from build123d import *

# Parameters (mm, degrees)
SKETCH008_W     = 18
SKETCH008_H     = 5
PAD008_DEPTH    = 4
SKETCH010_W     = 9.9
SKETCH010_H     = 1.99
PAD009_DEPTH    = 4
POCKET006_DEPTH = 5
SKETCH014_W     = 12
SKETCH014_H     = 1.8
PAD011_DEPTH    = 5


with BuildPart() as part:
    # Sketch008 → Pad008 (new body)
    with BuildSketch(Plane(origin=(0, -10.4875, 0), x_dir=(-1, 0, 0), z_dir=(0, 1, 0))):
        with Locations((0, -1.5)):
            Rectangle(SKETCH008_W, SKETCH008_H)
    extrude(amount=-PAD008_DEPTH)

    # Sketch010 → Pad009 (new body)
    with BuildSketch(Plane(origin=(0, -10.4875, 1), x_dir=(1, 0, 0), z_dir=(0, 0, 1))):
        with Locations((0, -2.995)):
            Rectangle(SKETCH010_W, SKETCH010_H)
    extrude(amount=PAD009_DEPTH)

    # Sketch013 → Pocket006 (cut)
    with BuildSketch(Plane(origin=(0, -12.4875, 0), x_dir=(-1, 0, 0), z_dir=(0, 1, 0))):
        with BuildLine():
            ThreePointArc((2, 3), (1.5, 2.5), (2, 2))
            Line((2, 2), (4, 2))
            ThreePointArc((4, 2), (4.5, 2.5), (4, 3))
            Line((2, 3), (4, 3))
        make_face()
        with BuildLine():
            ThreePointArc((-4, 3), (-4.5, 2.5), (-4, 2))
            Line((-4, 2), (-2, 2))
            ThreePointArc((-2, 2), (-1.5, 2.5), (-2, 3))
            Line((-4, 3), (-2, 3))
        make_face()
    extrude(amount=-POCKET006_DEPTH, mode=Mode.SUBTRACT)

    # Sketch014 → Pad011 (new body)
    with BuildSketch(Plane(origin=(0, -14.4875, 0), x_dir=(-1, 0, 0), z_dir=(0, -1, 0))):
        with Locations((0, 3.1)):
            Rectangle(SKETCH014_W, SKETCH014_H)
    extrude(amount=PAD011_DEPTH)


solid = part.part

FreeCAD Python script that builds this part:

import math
import FreeCAD as App
import Part
import Sketcher
from FreeCAD import Vector


def add_polygon(sketch, points):
    """Adds a closed chain of lines whose ends are joined by coincident constraints."""
    first, n = sketch.GeometryCount, len(points)
    for a, b in zip(points, points[1:] + points[:1]):
        sketch.addGeometry(Part.LineSegment(App.Vector(*a, 0), App.Vector(*b, 0)), False)
    for i in range(n):
        sketch.addConstraint(Sketcher.Constraint("Coincident", first + i, 2, first + (i + 1) % n, 1))

doc = App.newDocument("Part")
params = doc.addObject("Spreadsheet::Sheet", "Params")
for row, (alias, value) in enumerate([
    ("sketch1_width", "18 mm"),
    ("sketch1_height", "5 mm"),
    ("pad1_length", "4 mm"),
    ("sketch2_width", "9.9 mm"),
    ("sketch2_height", "1.99 mm"),
    ("pad2_length", "4 mm"),
    ("sketch3_radius", "0.5 mm"),
    ("sketch3_width", "2 mm"),
    ("pocket1_length", "5 mm"),
    ("sketch4_width", "12 mm"),
    ("sketch4_height", "1.8 mm"),
    ("pad3_length", "5 mm"),
], start=1):
    params.set(f"A{row}", alias)
    params.set(f"B{row}", "=" + value)
    params.setAlias(f"B{row}", alias)

body = doc.addObject("PartDesign::Body", "Body")

# Sketch on XZ plane
sketch1 = body.newObject("Sketcher::SketchObject", "Sketch")
sketch1.AttachmentSupport = (doc.getObject("XZ_Plane"), [""])
sketch1.MapMode = "FlatFace"
sketch1.AttachmentOffset = App.Placement(Vector(0, 0, 10.4875), App.Rotation())
add_polygon(sketch1, [(9, 1), (9, -4), (-9, -4), (-9, 1)])  # lines 0-3
sketch1.addConstraint([
    Sketcher.Constraint("Vertical", 0),
    Sketcher.Constraint("Horizontal", 1),
    Sketcher.Constraint("Vertical", 2),
    Sketcher.Constraint("Horizontal", 3),
    Sketcher.Constraint("DistanceX", 1, 2, 1, 1, 18.0),
    Sketcher.Constraint("DistanceY", 0, 2, 0, 1, 5.0),
    Sketcher.Constraint("DistanceX", -1, 1, 0, 2, 9.0),
    Sketcher.Constraint("DistanceY", 0, 2, -1, 1, 4.0),
])
sketch1.setExpression("Constraints[8]", "Params.sketch1_width")
sketch1.setExpression("Constraints[9]", "Params.sketch1_height")
pad1 = body.newObject("PartDesign::Pad", "Pad")
pad1.Profile = sketch1
pad1.setExpression("Length", "Params.pad1_length")

# Sketch on XY plane
sketch2 = body.newObject("Sketcher::SketchObject", "Sketch001")
sketch2.AttachmentSupport = (doc.getObject("XY_Plane"), [""])
sketch2.MapMode = "FlatFace"
sketch2.AttachmentOffset = App.Placement(Vector(0, 0, 1), App.Rotation())
add_polygon(sketch2, [(-5, -12.5), (-5, -14.5), (5, -14.5), (5, -12.5)])  # lines 0-3
sketch2.addConstraint([
    Sketcher.Constraint("Vertical", 0),
    Sketcher.Constraint("Horizontal", 1),
    Sketcher.Constraint("Vertical", 2),
    Sketcher.Constraint("Horizontal", 3),
    Sketcher.Constraint("DistanceX", 1, 1, 1, 2, 9.9),
    Sketcher.Constraint("DistanceY", 0, 2, 0, 1, 1.99),
    Sketcher.Constraint("DistanceX", 0, 2, -1, 1, 4.95),
    Sketcher.Constraint("DistanceY", 0, 2, -1, 1, 14.4775),
])
sketch2.setExpression("Constraints[8]", "Params.sketch2_width")
sketch2.setExpression("Constraints[9]", "Params.sketch2_height")
pad2 = body.newObject("PartDesign::Pad", "Pad001")
pad2.Profile = sketch2
pad2.setExpression("Length", "Params.pad2_length")

# Sketch on XZ plane
sketch3 = body.newObject("Sketcher::SketchObject", "Sketch002")
sketch3.AttachmentSupport = (doc.getObject("XZ_Plane"), [""])
sketch3.MapMode = "FlatFace"
sketch3.AttachmentOffset = App.Placement(Vector(0, 0, 12.4875), App.Rotation())
sketch3.addGeometry([
    Part.ArcOfCircle(Part.Circle(Vector(-2, 2.5, 0), Vector(0, 0, 1), 0.5), math.radians(-90), math.radians(90)),  # 0
    Part.LineSegment(Vector(-2, 2, 0), Vector(-4, 2, 0)),  # 1
    Part.ArcOfCircle(Part.Circle(Vector(-4, 2.5, 0), Vector(0, 0, 1), 0.5), math.radians(90), math.radians(270)),  # 2
    Part.LineSegment(Vector(-4, 3, 0), Vector(-2, 3, 0)),  # 3
    Part.ArcOfCircle(Part.Circle(Vector(4, 2.5, 0), Vector(0, 0, 1), 0.5), math.radians(-90), math.radians(90)),  # 4
    Part.LineSegment(Vector(4, 2, 0), Vector(2, 2, 0)),  # 5
    Part.ArcOfCircle(Part.Circle(Vector(2, 2.5, 0), Vector(0, 0, 1), 0.5), math.radians(90), math.radians(270)),  # 6
    Part.LineSegment(Vector(2, 3, 0), Vector(4, 3, 0)),  # 7
], False)
sketch3.addConstraint([
    Sketcher.Constraint("Tangent", 0, 1, 1, 1),
    Sketcher.Constraint("Tangent", 1, 2, 2, 2),
    Sketcher.Constraint("Tangent", 2, 1, 3, 1),
    Sketcher.Constraint("Tangent", 3, 2, 0, 2),
    Sketcher.Constraint("Tangent", 4, 1, 5, 1),
    Sketcher.Constraint("Tangent", 5, 2, 6, 2),
    Sketcher.Constraint("Tangent", 6, 1, 7, 1),
    Sketcher.Constraint("Tangent", 7, 2, 4, 2),
    Sketcher.Constraint("Horizontal", 1),
    Sketcher.Constraint("Horizontal", 3),
    Sketcher.Constraint("Horizontal", 5),
    Sketcher.Constraint("Horizontal", 7),
    Sketcher.Constraint("Equal", 2, 4),
    Sketcher.Constraint("Symmetric", 2, 3, 4, 3, -2),
    Sketcher.Constraint("Equal", 3, 5),
    Sketcher.Constraint("Radius", 0, 0.5),
    Sketcher.Constraint("DistanceX", 1, 2, 1, 1, 2.0),
    Sketcher.Constraint("DistanceX", 0, 3, -1, 1, 2.0),
    Sketcher.Constraint("DistanceY", -1, 1, 0, 1, 2.0),
])
sketch3.setExpression("Constraints[15]", "Params.sketch3_radius")
sketch3.setExpression("Constraints[16]", "Params.sketch3_width")
pocket1 = body.newObject("PartDesign::Pocket", "Pocket")
pocket1.Profile = sketch3
pocket1.setExpression("Length", "Params.pocket1_length")
pocket1.Reversed = True

# Sketch on XZ plane
sketch4 = body.newObject("Sketcher::SketchObject", "Sketch003")
sketch4.AttachmentSupport = (doc.getObject("XZ_Plane"), [""])
sketch4.MapMode = "FlatFace"
sketch4.AttachmentOffset = App.Placement(Vector(0, 0, 14.4875), App.Rotation())
add_polygon(sketch4, [(6, -4), (6, -2.2), (-6, -2.2), (-6, -4)])  # lines 0-3
sketch4.addConstraint([
    Sketcher.Constraint("Vertical", 0),
    Sketcher.Constraint("Horizontal", 1),
    Sketcher.Constraint("Vertical", 2),
    Sketcher.Constraint("Horizontal", 3),
    Sketcher.Constraint("DistanceX", 1, 2, 1, 1, 12.0),
    Sketcher.Constraint("DistanceY", 0, 1, 0, 2, 1.8),
    Sketcher.Constraint("DistanceX", -1, 1, 0, 2, 6.0),
    Sketcher.Constraint("DistanceY", 2, 2, -1, 1, 4.0),
])
sketch4.setExpression("Constraints[8]", "Params.sketch4_width")
sketch4.setExpression("Constraints[9]", "Params.sketch4_height")
pad3 = body.newObject("PartDesign::Pad", "Pad002")
pad3.Profile = sketch4
pad3.setExpression("Length", "Params.pad3_length")

doc.recompute()
